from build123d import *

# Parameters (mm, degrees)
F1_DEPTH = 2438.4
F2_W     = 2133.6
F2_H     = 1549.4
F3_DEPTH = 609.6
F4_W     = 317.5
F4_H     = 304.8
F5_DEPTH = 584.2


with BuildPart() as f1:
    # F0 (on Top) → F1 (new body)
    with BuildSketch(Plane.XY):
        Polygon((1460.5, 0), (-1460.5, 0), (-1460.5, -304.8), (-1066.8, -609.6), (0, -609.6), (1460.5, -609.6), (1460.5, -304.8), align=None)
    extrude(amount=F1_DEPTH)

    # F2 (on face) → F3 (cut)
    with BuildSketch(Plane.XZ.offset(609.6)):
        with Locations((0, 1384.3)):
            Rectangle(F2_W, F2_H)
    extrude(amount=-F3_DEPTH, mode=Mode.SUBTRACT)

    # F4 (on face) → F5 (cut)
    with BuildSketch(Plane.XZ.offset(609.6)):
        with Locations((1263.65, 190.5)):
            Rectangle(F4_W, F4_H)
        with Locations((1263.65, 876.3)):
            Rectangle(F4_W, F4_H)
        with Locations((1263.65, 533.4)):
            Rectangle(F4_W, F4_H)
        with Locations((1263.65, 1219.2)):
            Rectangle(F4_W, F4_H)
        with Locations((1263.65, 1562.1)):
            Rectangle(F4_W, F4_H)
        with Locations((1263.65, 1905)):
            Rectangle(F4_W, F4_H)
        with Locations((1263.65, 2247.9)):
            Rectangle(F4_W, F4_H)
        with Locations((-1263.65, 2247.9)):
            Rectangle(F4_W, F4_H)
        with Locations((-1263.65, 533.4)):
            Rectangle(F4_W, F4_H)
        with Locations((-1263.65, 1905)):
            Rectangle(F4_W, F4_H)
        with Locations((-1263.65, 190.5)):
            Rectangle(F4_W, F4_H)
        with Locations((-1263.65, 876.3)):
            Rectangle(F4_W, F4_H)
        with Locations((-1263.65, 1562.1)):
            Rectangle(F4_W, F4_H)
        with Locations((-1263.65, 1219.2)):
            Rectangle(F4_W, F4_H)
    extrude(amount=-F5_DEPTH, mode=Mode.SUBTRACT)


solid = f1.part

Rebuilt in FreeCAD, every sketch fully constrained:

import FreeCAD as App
import Part
import Sketcher
Q = App.Units.Quantity


def add_polygon(sketch, points):
    """Adds a closed chain of lines whose ends are joined by coincident constraints."""
    first, n = sketch.GeometryCount, len(points)
    for a, b in zip(points, points[1:] + points[:1]):
        sketch.addGeometry(Part.LineSegment(App.Vector(*a, 0), App.Vector(*b, 0)), False)
    for i in range(n):
        sketch.addConstraint(Sketcher.Constraint("Coincident", first + i, 2, first + (i + 1) % n, 1))

doc = App.newDocument("Part")
body = doc.addObject("PartDesign::Body", "Body")

sketch1 = body.newObject("Sketcher::SketchObject", "Sketch")
sketch1.AttachmentSupport = (doc.getObject("XY_Plane"), [""])
sketch1.MapMode = "FlatFace"
add_polygon(sketch1, [(1460, 0), (-1460, 0), (-1460, -305), (-1067, -610), (1460, -610)])
sketch1.addConstraint([
    Sketcher.Constraint("Horizontal", 0),
    Sketcher.Constraint("Vertical", 1),
    Sketcher.Constraint("Horizontal", 3),
    Sketcher.Constraint("Vertical", 4),
    Sketcher.Constraint("Symmetric", 0, 2, 4, 2, -1, 1),
    Sketcher.Constraint("DistanceX", 0, 2, 0, 1, Q("115 in")),
    Sketcher.Constraint("DistanceY", 1, 2, 1, 1, Q("12 in")),
    Sketcher.Constraint("DistanceY", 4, 1, 4, 2, Q("24 in")),
    Sketcher.Constraint("DistanceX", 3, 1, 3, 2, Q("99.5 in")),
])
pad1 = body.newObject("PartDesign::Pad", "Pad")
pad1.Profile = sketch1
pad1.Length = Q("96 in")

sketch2 = body.newObject("Sketcher::SketchObject", "Sketch001")
sketch2.AttachmentSupport = (doc.getObject("XZ_Plane"), [""])
sketch2.MapMode = "FlatFace"
sketch2.AttachmentOffset = App.Placement(App.Vector(0, 0, 24 * 25.4), App.Rotation())
add_polygon(sketch2, [(-1067, 2159), (-1067, 610), (1067, 610), (1067, 2159)])
sketch2.addConstraint([
    Sketcher.Constraint("Vertical", 0),
    Sketcher.Constraint("Horizontal", 1),
    Sketcher.Constraint("Vertical", 2),
    Sketcher.Constraint("Horizontal", 3),
    Sketcher.Constraint("DistanceX", 1, 1, 1, 2, Q("84 in")),
    Sketcher.Constraint("DistanceY", 0, 2, 0, 1, Q("61 in")),
    Sketcher.Constraint("DistanceX", 0, 2, -1, 1, Q("42 in")),
    Sketcher.Constraint("DistanceY", -1, 1, 0, 2, Q("24 in")),
])
pocket1 = body.newObject("PartDesign::Pocket", "Pocket")
pocket1.Profile = sketch2
pocket1.Length = Q("24 in")

sketch3 = body.newObject("Sketcher::SketchObject", "Sketch002")
sketch3.AttachmentSupport = (doc.getObject("XZ_Plane"), [""])
sketch3.MapMode = "FlatFace"
sketch3.AttachmentOffset = App.Placement(App.Vector(0, 0, 24 * 25.4), App.Rotation())
add_polygon(sketch3, [(1105, 343), (1105, 38), (1422, 38), (1422, 343)])
add_polygon(sketch3, [(1105, 1029), (1105, 724), (1422, 724), (1422, 1029)])
add_polygon(sketch3, [(1105, 686), (1105, 381), (1422, 381), (1422, 686)])
add_polygon(sketch3, [(1105, 1372), (1105, 1067), (1422, 1067), (1422, 1372)])
add_polygon(sketch3, [(1105, 1714), (1105, 1410), (1422, 1410), (1422, 1714)])
add_polygon(sketch3, [(1105, 2057), (1105, 1753), (1422, 1753), (1422, 2057)])
add_polygon(sketch3, [(1105, 2400), (1105, 2096), (1422, 2096), (1422, 2400)])
add_polygon(sketch3, [(-1422, 2400), (-1422, 2096), (-1105, 2096), (-1105, 2400)])
add_polygon(sketch3, [(-1422, 686), (-1422, 381), (-1105, 381), (-1105, 686)])
add_polygon(sketch3, [(-1422, 2057), (-1422, 1753), (-1105, 1753), (-1105, 2057)])
add_polygon(sketch3, [(-1422, 343), (-1422, 38), (-1105, 38), (-1105, 343)])
add_polygon(sketch3, [(-1422, 1029), (-1422, 724), (-1105, 724), (-1105, 1029)])
add_polygon(sketch3, [(-1422, 1714), (-1422, 1410), (-1105, 1410), (-1105, 1714)])
add_polygon(sketch3, [(-1422, 1372), (-1422, 1067), (-1105, 1067), (-1105, 1372)])
sketch3.addConstraint([
    Sketcher.Constraint("Vertical", 0),
    Sketcher.Constraint("Horizontal", 1),
    Sketcher.Constraint("Vertical", 2),
    Sketcher.Constraint("Horizontal", 3),
    Sketcher.Constraint("Vertical", 4),
    Sketcher.Constraint("Horizontal", 5),
    Sketcher.Constraint("Vertical", 6),
    Sketcher.Constraint("Horizontal", 7),
    Sketcher.Constraint("Vertical", 8),
    Sketcher.Constraint("Horizontal", 9),
    Sketcher.Constraint("Vertical", 10),
    Sketcher.Constraint("Horizontal", 11),
    Sketcher.Constraint("Vertical", 12),
    Sketcher.Constraint("Horizontal", 13),
    Sketcher.Constraint("Vertical", 14),
    Sketcher.Constraint("Horizontal", 15),
    Sketcher.Constraint("Vertical", 16),
    Sketcher.Constraint("Horizontal", 17),
    Sketcher.Constraint("Vertical", 18),
    Sketcher.Constraint("Horizontal", 19),
    Sketcher.Constraint("Vertical", 20),
    Sketcher.Constraint("Horizontal", 21),
    Sketcher.Constraint("Vertical", 22),
    Sketcher.Constraint("Horizontal", 23),
    Sketcher.Constraint("Vertical", 24),
    Sketcher.Constraint("Horizontal", 25),
    Sketcher.Constraint("Vertical", 26),
    Sketcher.Constraint("Horizontal", 27),
    Sketcher.Constraint("Vertical", 28),
    Sketcher.Constraint("Horizontal", 29),
    Sketcher.Constraint("Vertical", 30),
    Sketcher.Constraint("Horizontal", 31),
    Sketcher.Constraint("Vertical", 32),
    Sketcher.Constraint("Horizontal", 33),
    Sketcher.Constraint("Vertical", 34),
    Sketcher.Constraint("Horizontal", 35),
    Sketcher.Constraint("Vertical", 36),
    Sketcher.Constraint("Horizontal", 37),
    Sketcher.Constraint("Vertical", 38),
    Sketcher.Constraint("Horizontal", 39),
    Sketcher.Constraint("Vertical", 40),
    Sketcher.Constraint("Horizontal", 41),
    Sketcher.Constraint("Vertical", 42),
    Sketcher.Constraint("Horizontal", 43),
    Sketcher.Constraint("Vertical", 44),
    Sketcher.Constraint("Horizontal", 45),
    Sketcher.Constraint("Vertical", 46),
    Sketcher.Constraint("Horizontal", 47),
    Sketcher.Constraint("Vertical", 48),
    Sketcher.Constraint("Horizontal", 49),
    Sketcher.Constraint("Vertical", 50),
    Sketcher.Constraint("Horizontal", 51),
    Sketcher.Constraint("Vertical", 52),
    Sketcher.Constraint("Horizontal", 53),
    Sketcher.Constraint("Vertical", 54),
    Sketcher.Constraint("Horizontal", 55),
    Sketcher.Constraint("Symmetric", 25, 2, 28, 2, -2),
    Sketcher.Constraint("Symmetric", 27, 2, 30, 2, -2),
    Sketcher.Constraint("Symmetric", 9, 2, 32, 2, -2),
    Sketcher.Constraint("Symmetric", 11, 2, 34, 2, -2),
    Sketcher.Constraint("Symmetric", 21, 2, 36, 2, -2),
    Sketcher.Constraint("Symmetric", 23, 2, 38, 2, -2),
    Sketcher.Constraint("Symmetric", 1, 2, 40, 2, -2),
    Sketcher.Constraint("Symmetric", 3, 2, 42, 2, -2),
    Sketcher.Constraint("Symmetric", 5, 2, 44, 2, -2),
    Sketcher.Constraint("Symmetric", 7, 2, 46, 2, -2),
    Sketcher.Constraint("Symmetric", 17, 2, 48, 2, -2),
    Sketcher.Constraint("Symmetric", 19, 2, 50, 2, -2),
    Sketcher.Constraint("Symmetric", 13, 2, 52, 2, -2),
    Sketcher.Constraint("Symmetric", 15, 2, 54, 2, -2),
    Sketcher.Constraint("Vertical", 3, 2, 4, 2),
    Sketcher.Constraint("Vertical", 2, 2, 5, 2),
    Sketcher.Constraint("Vertical", 7, 2, 8, 2),
    Sketcher.Constraint("Vertical", 6, 2, 9, 2),
    Sketcher.Constraint("Vertical", 11, 2, 12, 2),
    Sketcher.Constraint("Vertical", 10, 2, 13, 2),
    Sketcher.Constraint("Vertical", 15, 2, 16, 2),
    Sketcher.Constraint("Vertical", 14, 2, 17, 2),
    Sketcher.Constraint("Vertical", 19, 2, 20, 2),
    Sketcher.Constraint("Vertical", 18, 2, 21, 2),
    Sketcher.Constraint("Vertical", 23, 2, 24, 2),
    Sketcher.Constraint("Vertical", 22, 2, 25, 2),
    Sketcher.Constraint("Equal", 2, 4),
    Sketcher.Constraint("Equal", 6, 8),
    Sketcher.Constraint("Equal", 10, 12),
    Sketcher.Constraint("Equal", 14, 16),
    Sketcher.Constraint("Equal", 18, 20),
    Sketcher.Constraint("Equal", 22, 24),
    Sketcher.Constraint("DistanceY", 0, 2, 0, 1, Q("12 in")),
    Sketcher.Constraint("DistanceX", 1, 1, 1, 2, Q("12.5 in")),
    Sketcher.Constraint("DistanceX", -1, 1, 1, 2, Q("56 in")),
    Sketcher.Constraint("DistanceY", -1, 1, 8, 2, Q("15 in")),
    Sketcher.Constraint("DistanceY", -1, 1, 12, 2, Q("42 in")),
    Sketcher.Constraint("DistanceY", -1, 1, 20, 2, Q("69 in")),
    Sketcher.Constraint("DistanceY", 3, 2, 4, 2, Q("15 in")),
    Sketcher.Constraint("DistanceY", 7, 2, 16, 2, Q("15 in")),
    Sketcher.Constraint("DistanceY", 19, 2, 24, 2, Q("15 in")),
    Sketcher.Constraint("DistanceY", -1, 1, 0, 2, Q("1.5 in")),
])
pocket2 = body.newObject("PartDesign::Pocket", "Pocket001")
pocket2.Profile = sketch3
pocket2.Length = Q("23 in")

doc.recompute()
